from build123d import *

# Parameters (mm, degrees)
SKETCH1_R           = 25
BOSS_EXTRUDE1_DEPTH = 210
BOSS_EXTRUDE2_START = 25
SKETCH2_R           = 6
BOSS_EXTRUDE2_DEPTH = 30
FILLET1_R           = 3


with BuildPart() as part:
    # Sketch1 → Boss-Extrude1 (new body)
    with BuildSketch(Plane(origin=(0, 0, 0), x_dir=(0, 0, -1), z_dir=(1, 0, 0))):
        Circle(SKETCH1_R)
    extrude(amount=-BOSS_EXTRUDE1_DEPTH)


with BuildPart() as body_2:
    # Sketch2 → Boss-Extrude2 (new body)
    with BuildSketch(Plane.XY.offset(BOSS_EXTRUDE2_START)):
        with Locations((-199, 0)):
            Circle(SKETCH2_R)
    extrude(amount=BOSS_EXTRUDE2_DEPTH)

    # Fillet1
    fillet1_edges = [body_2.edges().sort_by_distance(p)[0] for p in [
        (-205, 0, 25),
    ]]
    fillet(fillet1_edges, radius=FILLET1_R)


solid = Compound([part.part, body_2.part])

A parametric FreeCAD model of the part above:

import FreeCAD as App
import Part
import Sketcher

V = App.Vector


def edges_at(feature, points):
    """Names of the edges that pass closest to the given points."""
    edges = feature.Shape.Edges
    near = lambda p: min(range(len(edges)), key=lambda i: edges[i].distToShape(Part.Vertex(*p))[0])
    return sorted({f"Edge{near(p) + 1}" for p in points})

doc = App.newDocument("Part")
body = doc.addObject("PartDesign::Body", "Body")

sketch1 = doc.addObject("Sketcher::SketchObject", "Sketch")
body.addObject(sketch1)
sketch1.AttachmentSupport = (doc.YZ_Plane, [""])
sketch1.MapMode = "FlatFace"
sketch1.addGeometry(Part.Circle(V(0, 0, 0), V(0, 0, 1), 25), False)
sketch1.addConstraint(Sketcher.Constraint("Coincident", 0, 3, -1, 1))
sketch1.addConstraint(Sketcher.Constraint("Diameter", 0, 50.0))
pad1 = doc.addObject("PartDesign::Pad", "Pad")
body.addObject(pad1)
pad1.Profile = sketch1
pad1.Length = 210
pad1.Reversed = True
body2 = doc.addObject("PartDesign::Body", "Body001")

sketch2 = doc.addObject("Sketcher::SketchObject", "Sketch001")
body2.addObject(sketch2)
sketch2.AttachmentSupport = (doc.getObject("XY_Plane001"), [""])
sketch2.MapMode = "FlatFace"
sketch2.AttachmentOffset = App.Placement(V(0, 0, 25), App.Rotation())
sketch2.addGeometry(Part.Circle(V(-199, 0, 0), V(0, 0, 1), 6), False)
sketch2.addConstraint(Sketcher.Constraint("PointOnObject", 0, 3, -1))
sketch2.addConstraint(Sketcher.Constraint("Diameter", 0, 12.0))
sketch2.addConstraint(Sketcher.Constraint("DistanceX", 0, 3, -1, 1, 199.0))
pad2 = doc.addObject("PartDesign::Pad", "Pad001")
body2.addObject(pad2)
pad2.Profile = sketch2
pad2.Length = 30
doc.recompute()

fillet = doc.addObject("PartDesign::Fillet", "Fillet")
body2.addObject(fillet)
fillet.Base = (pad2, edges_at(pad2, [(-205, 0, 25)]))
fillet.Radius = 3

doc.recompute()
